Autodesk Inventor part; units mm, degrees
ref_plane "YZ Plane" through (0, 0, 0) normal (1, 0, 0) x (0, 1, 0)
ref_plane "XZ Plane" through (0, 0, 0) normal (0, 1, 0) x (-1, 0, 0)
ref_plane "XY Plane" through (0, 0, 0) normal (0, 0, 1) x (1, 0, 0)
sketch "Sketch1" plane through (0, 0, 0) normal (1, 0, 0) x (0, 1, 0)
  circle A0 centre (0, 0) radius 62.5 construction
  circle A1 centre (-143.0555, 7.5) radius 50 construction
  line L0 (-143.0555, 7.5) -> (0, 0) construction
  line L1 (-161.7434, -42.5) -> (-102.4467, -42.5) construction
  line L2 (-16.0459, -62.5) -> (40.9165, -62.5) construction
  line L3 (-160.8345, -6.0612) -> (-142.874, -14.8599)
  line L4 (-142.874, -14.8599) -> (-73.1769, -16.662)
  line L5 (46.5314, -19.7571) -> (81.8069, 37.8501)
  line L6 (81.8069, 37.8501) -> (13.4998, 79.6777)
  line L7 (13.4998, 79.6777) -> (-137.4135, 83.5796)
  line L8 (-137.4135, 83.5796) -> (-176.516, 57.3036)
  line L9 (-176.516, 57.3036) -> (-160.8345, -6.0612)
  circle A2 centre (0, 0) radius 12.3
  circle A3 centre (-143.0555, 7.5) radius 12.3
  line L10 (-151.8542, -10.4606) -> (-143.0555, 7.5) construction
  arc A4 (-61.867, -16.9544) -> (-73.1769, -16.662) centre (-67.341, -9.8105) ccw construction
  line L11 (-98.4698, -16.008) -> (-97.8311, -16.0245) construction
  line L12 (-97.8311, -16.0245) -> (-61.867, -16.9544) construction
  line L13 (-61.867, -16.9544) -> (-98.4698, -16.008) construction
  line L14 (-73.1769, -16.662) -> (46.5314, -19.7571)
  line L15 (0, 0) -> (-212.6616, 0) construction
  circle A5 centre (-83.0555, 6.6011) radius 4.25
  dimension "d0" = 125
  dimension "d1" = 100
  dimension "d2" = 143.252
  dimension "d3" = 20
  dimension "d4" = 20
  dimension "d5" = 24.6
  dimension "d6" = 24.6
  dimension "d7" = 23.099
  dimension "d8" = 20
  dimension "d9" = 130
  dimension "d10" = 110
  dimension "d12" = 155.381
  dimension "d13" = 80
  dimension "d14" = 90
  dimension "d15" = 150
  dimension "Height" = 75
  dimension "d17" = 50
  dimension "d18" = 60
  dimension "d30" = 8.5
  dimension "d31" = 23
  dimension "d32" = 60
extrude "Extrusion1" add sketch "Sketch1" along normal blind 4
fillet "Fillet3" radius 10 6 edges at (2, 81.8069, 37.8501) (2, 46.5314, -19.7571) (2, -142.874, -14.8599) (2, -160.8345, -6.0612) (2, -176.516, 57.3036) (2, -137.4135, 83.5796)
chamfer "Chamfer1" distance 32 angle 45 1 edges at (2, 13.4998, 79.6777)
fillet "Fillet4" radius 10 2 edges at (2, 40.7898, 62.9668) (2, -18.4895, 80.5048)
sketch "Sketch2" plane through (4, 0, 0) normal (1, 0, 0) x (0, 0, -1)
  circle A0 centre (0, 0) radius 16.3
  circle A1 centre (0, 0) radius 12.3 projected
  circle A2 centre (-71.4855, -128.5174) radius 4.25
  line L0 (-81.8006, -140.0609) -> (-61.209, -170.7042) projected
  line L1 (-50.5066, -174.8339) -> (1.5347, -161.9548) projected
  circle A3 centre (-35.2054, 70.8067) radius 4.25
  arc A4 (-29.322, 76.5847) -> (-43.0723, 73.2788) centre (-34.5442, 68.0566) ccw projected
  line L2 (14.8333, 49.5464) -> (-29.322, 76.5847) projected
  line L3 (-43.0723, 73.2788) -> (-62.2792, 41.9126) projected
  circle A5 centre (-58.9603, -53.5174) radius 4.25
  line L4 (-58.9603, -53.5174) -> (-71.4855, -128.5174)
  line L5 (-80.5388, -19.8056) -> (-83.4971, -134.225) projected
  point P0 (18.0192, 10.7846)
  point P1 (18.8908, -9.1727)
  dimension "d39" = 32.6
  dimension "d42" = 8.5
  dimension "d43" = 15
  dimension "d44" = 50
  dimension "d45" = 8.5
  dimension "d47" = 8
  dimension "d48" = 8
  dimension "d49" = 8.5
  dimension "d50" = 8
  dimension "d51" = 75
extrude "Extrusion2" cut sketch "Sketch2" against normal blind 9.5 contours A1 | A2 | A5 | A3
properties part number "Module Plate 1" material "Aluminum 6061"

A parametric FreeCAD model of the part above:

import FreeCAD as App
import Part
import Sketcher

V = App.Vector
Q = App.Units.Quantity


def edges_at(feature, points):
    """Names of the edges that pass closest to the given points."""
    edges = feature.Shape.Edges
    near = lambda p: min(range(len(edges)), key=lambda i: edges[i].distToShape(Part.Vertex(*p))[0])
    return sorted({f"Edge{near(p) + 1}" for p in points})

doc = App.newDocument("Part")
body = doc.addObject("PartDesign::Body", "Body")

sketch1 = doc.addObject("Sketcher::SketchObject", "Sketch")
body.addObject(sketch1)
sketch1.AttachmentSupport = (doc.YZ_Plane, [""])
sketch1.MapMode = "FlatFace"
sketch1.addGeometry(Part.LineSegment(V(-176.516, 57.3036, 0), V(-160.8345, -6.0612, 0)), False)
sketch1.addGeometry(Part.LineSegment(V(-160.8345, -6.0612, 0), V(-142.874, -14.8599, 0)), False)
sketch1.addGeometry(Part.LineSegment(V(-142.874, -14.8599, 0), V(-73.1769, -16.662, 0)), False)
sketch1.addGeometry(Part.LineSegment(V(-73.1769, -16.662, 0), V(46.5314, -19.7571, 0)), False)
sketch1.addGeometry(Part.LineSegment(V(46.5314, -19.7571, 0), V(81.8069, 37.8501, 0)), False)
sketch1.addGeometry(Part.LineSegment(V(81.8069, 37.8501, 0), V(13.4998, 79.6777, 0)), False)
sketch1.addGeometry(Part.LineSegment(V(13.4998, 79.6777, 0), V(-137.4135, 83.5796, 0)), False)
sketch1.addGeometry(Part.LineSegment(V(-137.4135, 83.5796, 0), V(-176.516, 57.3036, 0)), False)
sketch1.addGeometry(Part.Circle(V(-143.0555, 7.5, 0), V(0, 0, 1), 12.3), False)
sketch1.addGeometry(Part.Circle(V(-83.0555, 6.6011, 0), V(0, 0, 1), 4.25), False)
sketch1.addGeometry(Part.Circle(V(0, 0, 0), V(0, 0, 1), 12.3), False)
sketch1.addConstraint(Sketcher.Constraint("Coincident", 0, 2, 1, 1))
sketch1.addConstraint(Sketcher.Constraint("Coincident", 1, 2, 2, 1))
sketch1.addConstraint(Sketcher.Constraint("Coincident", 2, 2, 3, 1))
sketch1.addConstraint(Sketcher.Constraint("Coincident", 3, 2, 4, 1))
sketch1.addConstraint(Sketcher.Constraint("Coincident", 4, 2, 5, 1))
sketch1.addConstraint(Sketcher.Constraint("Coincident", 5, 2, 6, 1))
sketch1.addConstraint(Sketcher.Constraint("Coincident", 6, 2, 7, 1))
sketch1.addConstraint(Sketcher.Constraint("Coincident", 7, 2, 0, 1))
sketch1.addConstraint(Sketcher.Constraint("Coincident", 10, 3, -1, 1))
sketch1.addConstraint(Sketcher.Constraint("Diameter", 8, Q("24.6 mm")))
sketch1.addConstraint(Sketcher.Constraint("Diameter", 9, Q("8.5 mm")))
sketch1.addConstraint(Sketcher.Constraint("Diameter", 10, Q("24.6 mm")))
sketch1.addConstraint(Sketcher.Constraint("Distance", 1, Q("20 mm")))
sketch1.addConstraint(Sketcher.Constraint("DistanceX", 8, 3, 9, 3, Q("60 mm")))
sketch1.addConstraint(Sketcher.Constraint("DistanceY", -1, 1, 8, 3, Q("7.5 mm")))
sketch1.addConstraint(Sketcher.Constraint("DistanceY", 1, 2, -1, 1, Q("14.86 mm")))
sketch1.addConstraint(Sketcher.Constraint("DistanceY", -1, 1, 4, 2, Q("37.85 mm")))
sketch1.addConstraint(Sketcher.Constraint("DistanceY", -1, 1, 9, 3, Q("6.601 mm")))
sketch1.addConstraint(Sketcher.Constraint("DistanceX", 1, 2, -1, 1, Q("142.874 mm")))
sketch1.addConstraint(Sketcher.Constraint("DistanceX", 2, 2, -1, 1, Q("73.177 mm")))
sketch1.addConstraint(Sketcher.Constraint("DistanceY", 2, 2, -1, 1, Q("16.662 mm")))
sketch1.addConstraint(Sketcher.Constraint("DistanceY", 3, 2, -1, 1, Q("19.757 mm")))
sketch1.addConstraint(Sketcher.Constraint("DistanceX", -1, 1, 4, 2, Q("81.807 mm")))
sketch1.addConstraint(Sketcher.Constraint("DistanceX", 7, 2, -1, 1, Q("176.516 mm")))
sketch1.addConstraint(Sketcher.Constraint("DistanceX", 0, 2, 8, 3, Q("17.779 mm")))
sketch1.addConstraint(Sketcher.Constraint("DistanceX", 9, 3, 3, 2, Q("129.587 mm")))
sketch1.addConstraint(Sketcher.Constraint("DistanceX", 5, 2, 4, 2, Q("68.307 mm")))
sketch1.addConstraint(Sketcher.Constraint("DistanceX", 8, 3, 6, 2, Q("5.642 mm")))
sketch1.addConstraint(Sketcher.Constraint("DistanceY", 7, 2, 6, 2, Q("26.276 mm")))
sketch1.addConstraint(Sketcher.Constraint("Distance", 0, Q("65.2764 mm")))
sketch1.addConstraint(Sketcher.Constraint("Distance", 3, Q("119.7483 mm")))
sketch1.addConstraint(Sketcher.Constraint("Distance", 5, Q("80.0962 mm")))
pad1 = doc.addObject("PartDesign::Pad", "Pad")
body.addObject(pad1)
pad1.Profile = sketch1
pad1.Length = 4
doc.recompute()

fillet = doc.addObject("PartDesign::Fillet", "Fillet")
body.addObject(fillet)
fillet.Base = (pad1, edges_at(pad1, [
    (2, 81.807, 37.85),
    (2, 46.531, -19.757),
    (2, -142.874, -14.86),
    (2, -160.834, -6.061),
    (2, -176.516, 57.304),
    (2, -137.413, 83.58),
]))
fillet.Radius = 10
doc.recompute()

chamfer = doc.addObject("PartDesign::Chamfer", "Chamfer")
body.addObject(chamfer)
chamfer.Base = (fillet, edges_at(fillet, [(2, 13.5, 79.678)]))
chamfer.Size = 32
doc.recompute()

fillet2 = doc.addObject("PartDesign::Fillet", "Fillet001")
body.addObject(fillet2)
fillet2.Base = (chamfer, edges_at(chamfer, [(2, 40.79, 62.967), (2, -18.489, 80.505)]))
fillet2.Radius = 10

sketch2 = doc.addObject("Sketcher::SketchObject", "Sketch001")
body.addObject(sketch2)
sketch2.AttachmentSupport = (doc.YZ_Plane, [""])
sketch2.MapMode = "FlatFace"
sketch2.AttachmentOffset = App.Placement(V(0, 0, 4), App.Rotation())
sketch2.addGeometry(Part.Circle(V(0, 0, 0), V(0, 0, 1), 12.3), False)
sketch2.addGeometry(Part.Circle(V(-128.5, 71.5, 0), V(0, 0, 1), 4.2), False)
sketch2.addGeometry(Part.Circle(V(-53.5, 59, 0), V(0, 0, 1), 4.2), False)
sketch2.addGeometry(Part.Circle(V(70.8, 35.2, 0), V(0, 0, 1), 4.2), False)
sketch2.addConstraint(Sketcher.Constraint("Coincident", 0, 3, -1, 1))
sketch2.addConstraint(Sketcher.Constraint("Equal", 1, 2))
sketch2.addConstraint(Sketcher.Constraint("Equal", 2, 3))
sketch2.addConstraint(Sketcher.Constraint("Diameter", 1, Q("8.5 mm")))
sketch2.addConstraint(Sketcher.Constraint("DistanceX", 1, 3, 2, 3, Q("75 mm")))
sketch2.addConstraint(Sketcher.Constraint("Diameter", 0, Q("24.6 mm")))
sketch2.addConstraint(Sketcher.Constraint("DistanceY", 3, 3, 1, 3, Q("36.28 mm")))
sketch2.addConstraint(Sketcher.Constraint("DistanceX", 2, 3, 3, 3, Q("124.324 mm")))
sketch2.addConstraint(Sketcher.Constraint("DistanceY", 3, 3, 2, 3, Q("23.755 mm")))
sketch2.addConstraint(Sketcher.Constraint("DistanceX", 1, 3, -1, 1, Q("128.5174 mm")))
sketch2.addConstraint(Sketcher.Constraint("DistanceY", -1, 1, 1, 3, Q("71.4855 mm")))
pocket1 = doc.addObject("PartDesign::Pocket", "Pocket")
body.addObject(pocket1)
pocket1.Profile = sketch2
pocket1.Length = 9.5

doc.recompute()
